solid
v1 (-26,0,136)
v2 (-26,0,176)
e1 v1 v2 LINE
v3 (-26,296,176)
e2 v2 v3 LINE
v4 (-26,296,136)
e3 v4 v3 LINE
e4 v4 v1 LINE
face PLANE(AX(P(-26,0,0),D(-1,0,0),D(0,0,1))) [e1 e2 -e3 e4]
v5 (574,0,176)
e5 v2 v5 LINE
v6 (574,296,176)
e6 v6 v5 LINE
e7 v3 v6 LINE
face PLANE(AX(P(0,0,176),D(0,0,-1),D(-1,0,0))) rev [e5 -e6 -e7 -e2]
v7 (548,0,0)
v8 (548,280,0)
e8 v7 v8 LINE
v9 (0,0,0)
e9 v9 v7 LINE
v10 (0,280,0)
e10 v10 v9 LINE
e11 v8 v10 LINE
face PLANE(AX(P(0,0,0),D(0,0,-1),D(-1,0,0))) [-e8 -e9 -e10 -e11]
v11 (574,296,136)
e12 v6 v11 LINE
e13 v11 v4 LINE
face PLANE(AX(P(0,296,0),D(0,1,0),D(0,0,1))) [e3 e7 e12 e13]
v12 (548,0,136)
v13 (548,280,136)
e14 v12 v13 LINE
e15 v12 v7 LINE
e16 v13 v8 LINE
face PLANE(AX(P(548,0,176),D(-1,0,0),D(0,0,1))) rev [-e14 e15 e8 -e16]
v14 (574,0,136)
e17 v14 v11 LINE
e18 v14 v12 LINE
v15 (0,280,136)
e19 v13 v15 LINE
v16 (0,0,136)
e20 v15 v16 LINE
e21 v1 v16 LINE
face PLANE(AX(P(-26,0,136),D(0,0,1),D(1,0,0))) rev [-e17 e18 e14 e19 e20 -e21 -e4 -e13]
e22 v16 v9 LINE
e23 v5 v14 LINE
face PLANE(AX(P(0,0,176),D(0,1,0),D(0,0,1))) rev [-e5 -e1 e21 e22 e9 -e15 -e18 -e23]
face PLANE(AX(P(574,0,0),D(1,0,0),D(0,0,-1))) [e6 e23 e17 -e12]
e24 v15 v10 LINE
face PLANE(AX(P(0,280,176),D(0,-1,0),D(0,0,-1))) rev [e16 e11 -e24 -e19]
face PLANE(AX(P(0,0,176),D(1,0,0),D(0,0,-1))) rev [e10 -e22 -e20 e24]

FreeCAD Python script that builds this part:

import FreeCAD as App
import Part
import Sketcher
from FreeCAD import Vector


def add_polygon(sketch, points):
    """Adds a closed chain of lines whose ends are joined by coincident constraints."""
    first, n = sketch.GeometryCount, len(points)
    for a, b in zip(points, points[1:] + points[:1]):
        sketch.addGeometry(Part.LineSegment(App.Vector(*a, 0), App.Vector(*b, 0)), False)
    for i in range(n):
        sketch.addConstraint(Sketcher.Constraint("Coincident", first + i, 2, first + (i + 1) % n, 1))

doc = App.newDocument("Part")
params = doc.addObject("Spreadsheet::Sheet", "Params")
for row, (alias, value) in enumerate([
    ("sketch1_width", "548 mm"),
    ("sketch1_height", "280 mm"),
    ("pad1_length", "176 mm"),
    ("sketch2_width", "280 mm"),
    ("sketch2_height", "40 mm"),
    ("pad2_length", "26 mm"),
    ("sketch3_width", "280 mm"),
    ("sketch3_height", "40 mm"),
    ("pad3_length", "26 mm"),
    ("sketch4_width", "600 mm"),
    ("sketch4_height", "40 mm"),
    ("pad4_length", "16 mm"),
], start=1):
    params.set(f"A{row}", alias)
    params.set(f"B{row}", "=" + value)
    params.setAlias(f"B{row}", alias)

body = doc.addObject("PartDesign::Body", "Body")

sketch1 = doc.addObject("Sketcher::SketchObject", "Sketch")
body.addObject(sketch1)
sketch1.AttachmentSupport = (doc.XY_Plane, [""])
sketch1.MapMode = "FlatFace"
add_polygon(sketch1, [(0, 280), (0, 0), (548, 0), (548, 280)])
sketch1.addConstraint([
    Sketcher.Constraint("Vertical", 0),
    Sketcher.Constraint("Horizontal", 1),
    Sketcher.Constraint("Vertical", 2),
    Sketcher.Constraint("Horizontal", 3),
    Sketcher.Constraint("Coincident", 0, 2, -1, 1),
    Sketcher.Constraint("DistanceX", 1, 1, 1, 2, 548.0),
    Sketcher.Constraint("DistanceY", 0, 2, 0, 1, 280.0),
])
sketch1.setExpression("Constraints[9]", "Params.sketch1_width")
sketch1.setExpression("Constraints[10]", "Params.sketch1_height")
pad1 = doc.addObject("PartDesign::Pad", "Pad")
body.addObject(pad1)
pad1.Profile = sketch1
pad1.setExpression("Length", "Params.pad1_length")

sketch2 = doc.addObject("Sketcher::SketchObject", "Sketch001")
body.addObject(sketch2)
sketch2.AttachmentSupport = (doc.YZ_Plane, [""])
sketch2.MapMode = "FlatFace"
add_polygon(sketch2, [(280, 136), (0, 136), (0, 176), (280, 176)])
sketch2.addConstraint([
    Sketcher.Constraint("Horizontal", 0),
    Sketcher.Constraint("Vertical", 1),
    Sketcher.Constraint("Horizontal", 2),
    Sketcher.Constraint("Vertical", 3),
    Sketcher.Constraint("PointOnObject", 0, 2, -2),
    Sketcher.Constraint("DistanceX", 0, 2, 0, 1, 280.0),
    Sketcher.Constraint("DistanceY", 1, 1, 1, 2, 40.0),
    Sketcher.Constraint("DistanceY", -1, 1, 0, 2, 136.0),
])
sketch2.setExpression("Constraints[9]", "Params.sketch2_width")
sketch2.setExpression("Constraints[10]", "Params.sketch2_height")
pad2 = doc.addObject("PartDesign::Pad", "Pad001")
body.addObject(pad2)
pad2.Profile = sketch2
pad2.setExpression("Length", "Params.pad2_length")
pad2.Reversed = True

sketch3 = doc.addObject("Sketcher::SketchObject", "Sketch002")
body.addObject(sketch3)
sketch3.AttachmentSupport = (doc.YZ_Plane, [""])
sketch3.MapMode = "FlatFace"
sketch3.AttachmentOffset = App.Placement(Vector(0, 0, 548), App.Rotation())
add_polygon(sketch3, [(280, 176), (0, 176), (0, 136), (280, 136)])
sketch3.addConstraint([
    Sketcher.Constraint("Horizontal", 0),
    Sketcher.Constraint("Vertical", 1),
    Sketcher.Constraint("Horizontal", 2),
    Sketcher.Constraint("Vertical", 3),
    Sketcher.Constraint("PointOnObject", 0, 2, -2),
    Sketcher.Constraint("DistanceX", 0, 2, 0, 1, 280.0),
    Sketcher.Constraint("DistanceY", 1, 2, 1, 1, 40.0),
    Sketcher.Constraint("DistanceY", -1, 1, 0, 2, 176.0),
])
sketch3.setExpression("Constraints[9]", "Params.sketch3_width")
sketch3.setExpression("Constraints[10]", "Params.sketch3_height")
pad3 = doc.addObject("PartDesign::Pad", "Pad002")
body.addObject(pad3)
pad3.Profile = sketch3
pad3.setExpression("Length", "Params.pad3_length")

sketch4 = doc.addObject("Sketcher::SketchObject", "Sketch003")
body.addObject(sketch4)
sketch4.AttachmentSupport = (doc.XZ_Plane, [""])
sketch4.MapMode = "FlatFace"
sketch4.AttachmentOffset = App.Placement(Vector(0, 0, -280), App.Rotation())
add_polygon(sketch4, [(-26, 136), (-26, 176), (574, 176), (574, 136)])
sketch4.addConstraint([
    Sketcher.Constraint("Vertical", 0),
    Sketcher.Constraint("Horizontal", 1),
    Sketcher.Constraint("Vertical", 2),
    Sketcher.Constraint("Horizontal", 3),
    Sketcher.Constraint("DistanceX", 1, 1, 1, 2, 600.0),
    Sketcher.Constraint("DistanceY", 0, 1, 0, 2, 40.0),
    Sketcher.Constraint("DistanceX", 0, 2, -1, 1, 26.0),
    Sketcher.Constraint("DistanceY", -1, 1, 0, 2, 176.0),
])
sketch4.setExpression("Constraints[8]", "Params.sketch4_width")
sketch4.setExpression("Constraints[9]", "Params.sketch4_height")
pad4 = doc.addObject("PartDesign::Pad", "Pad003")
body.addObject(pad4)
pad4.Profile = sketch4
pad4.setExpression("Length", "Params.pad4_length")
pad4.Reversed = True

doc.recompute()
